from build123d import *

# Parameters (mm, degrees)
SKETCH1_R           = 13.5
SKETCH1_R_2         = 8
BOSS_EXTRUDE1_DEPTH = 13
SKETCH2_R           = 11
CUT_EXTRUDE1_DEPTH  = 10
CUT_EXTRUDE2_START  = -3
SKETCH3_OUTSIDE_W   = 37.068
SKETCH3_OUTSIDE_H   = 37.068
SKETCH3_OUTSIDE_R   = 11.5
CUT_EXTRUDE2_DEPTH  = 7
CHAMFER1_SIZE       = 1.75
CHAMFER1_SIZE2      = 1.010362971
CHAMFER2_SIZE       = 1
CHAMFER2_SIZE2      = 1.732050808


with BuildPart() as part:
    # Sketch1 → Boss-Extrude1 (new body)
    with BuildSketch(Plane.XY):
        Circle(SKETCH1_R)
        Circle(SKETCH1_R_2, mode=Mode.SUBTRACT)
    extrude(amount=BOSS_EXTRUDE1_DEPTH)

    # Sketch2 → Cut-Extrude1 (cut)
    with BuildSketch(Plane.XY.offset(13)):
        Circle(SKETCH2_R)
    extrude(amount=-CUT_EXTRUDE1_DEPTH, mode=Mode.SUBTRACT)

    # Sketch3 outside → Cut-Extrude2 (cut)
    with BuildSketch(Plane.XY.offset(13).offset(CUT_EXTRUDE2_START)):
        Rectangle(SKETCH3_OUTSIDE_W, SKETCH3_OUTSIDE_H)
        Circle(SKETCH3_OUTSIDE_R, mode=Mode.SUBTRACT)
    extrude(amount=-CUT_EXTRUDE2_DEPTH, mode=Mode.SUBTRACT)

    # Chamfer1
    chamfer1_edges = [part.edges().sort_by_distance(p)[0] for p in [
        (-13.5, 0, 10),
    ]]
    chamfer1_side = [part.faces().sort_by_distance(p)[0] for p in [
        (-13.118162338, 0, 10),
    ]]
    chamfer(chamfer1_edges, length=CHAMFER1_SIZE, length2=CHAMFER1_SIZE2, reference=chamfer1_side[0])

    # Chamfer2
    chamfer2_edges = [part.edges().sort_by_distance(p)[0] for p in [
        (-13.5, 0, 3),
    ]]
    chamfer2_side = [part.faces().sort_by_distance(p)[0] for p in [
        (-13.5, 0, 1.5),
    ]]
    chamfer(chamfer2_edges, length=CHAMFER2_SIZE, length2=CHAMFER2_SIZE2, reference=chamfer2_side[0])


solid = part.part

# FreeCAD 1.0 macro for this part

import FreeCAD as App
import Part
import Sketcher
Q = App.Units.Quantity


def edges_at(feature, points):
    """Names of the edges that pass closest to the given points."""
    edges = feature.Shape.Edges
    near = lambda p: min(range(len(edges)), key=lambda i: edges[i].distToShape(Part.Vertex(*p))[0])
    return sorted({f"Edge{near(p) + 1}" for p in points})


def add_polygon(sketch, points):
    """Adds a closed chain of lines whose ends are joined by coincident constraints."""
    first, n = sketch.GeometryCount, len(points)
    for a, b in zip(points, points[1:] + points[:1]):
        sketch.addGeometry(Part.LineSegment(App.Vector(*a, 0), App.Vector(*b, 0)), False)
    for i in range(n):
        sketch.addConstraint(Sketcher.Constraint("Coincident", first + i, 2, first + (i + 1) % n, 1))

doc = App.newDocument("Part")
body = doc.addObject("PartDesign::Body", "Body")

# Sketch on XY plane
sketch1 = doc.addObject("Sketcher::SketchObject", "Sketch")
body.addObject(sketch1)
sketch1.AttachmentSupport = (doc.XY_Plane, [""])
sketch1.MapMode = "FlatFace"
sketch1.addGeometry(Part.Circle(App.Vector(0, 0, 0), App.Vector(0, 0, 1), 14), False)
sketch1.addGeometry(Part.Circle(App.Vector(0, 0, 0), App.Vector(0, 0, 1), 8), False)
sketch1.addConstraint(Sketcher.Constraint("Coincident", 0, 3, -1, 1))
sketch1.addConstraint(Sketcher.Constraint("Coincident", 1, 3, -1, 1))
sketch1.addConstraint(Sketcher.Constraint("Diameter", 0, Q("27 mm")))
sketch1.addConstraint(Sketcher.Constraint("Diameter", 1, Q("16 mm")))
pad1 = doc.addObject("PartDesign::Pad", "Pad")
body.addObject(pad1)
pad1.Profile = sketch1
pad1.Length = 13

# Sketch on XY plane
sketch2 = doc.addObject("Sketcher::SketchObject", "Sketch001")
body.addObject(sketch2)
sketch2.AttachmentSupport = (doc.XY_Plane, [""])
sketch2.MapMode = "FlatFace"
sketch2.AttachmentOffset = App.Placement(App.Vector(0, 0, 13), App.Rotation())
sketch2.addGeometry(Part.Circle(App.Vector(0, 0, 0), App.Vector(0, 0, 1), 11), False)
sketch2.addConstraint(Sketcher.Constraint("Coincident", 0, 3, -1, 1))
sketch2.addConstraint(Sketcher.Constraint("Diameter", 0, Q("22 mm")))
pocket1 = doc.addObject("PartDesign::Pocket", "Pocket")
body.addObject(pocket1)
pocket1.Profile = sketch2
pocket1.Length = 10

# Sketch on XY plane
sketch3 = doc.addObject("Sketcher::SketchObject", "Sketch002")
body.addObject(sketch3)
sketch3.AttachmentSupport = (doc.XY_Plane, [""])
sketch3.MapMode = "FlatFace"
sketch3.AttachmentOffset = App.Placement(App.Vector(0, 0, 10), App.Rotation())
add_polygon(sketch3, [(-19, 19), (-19, -19), (19, -19), (19, 19)])  # lines 0-3
sketch3.addGeometry(Part.Circle(App.Vector(0, 0, 0), App.Vector(0, 0, 1), 12), False)  # 4
sketch3.addConstraint(Sketcher.Constraint("Vertical", 0))
sketch3.addConstraint(Sketcher.Constraint("Horizontal", 1))
sketch3.addConstraint(Sketcher.Constraint("Vertical", 2))
sketch3.addConstraint(Sketcher.Constraint("Horizontal", 3))
sketch3.addConstraint(Sketcher.Constraint("Coincident", 4, 3, -1, 1))
sketch3.addConstraint(Sketcher.Constraint("Symmetric", 0, 2, 2, 2, -1, 1))
sketch3.addConstraint(Sketcher.Constraint("Equal", 3, 0))
sketch3.addConstraint(Sketcher.Constraint("Diameter", 4, Q("23 mm")))
sketch3.addConstraint(Sketcher.Constraint("DistanceX", 1, 1, 1, 2, Q("37.068 mm")))
pocket2 = doc.addObject("PartDesign::Pocket", "Pocket001")
body.addObject(pocket2)
pocket2.Profile = sketch3
pocket2.Length = 7
doc.recompute()

chamfer = doc.addObject("PartDesign::Chamfer", "Chamfer")
body.addObject(chamfer)
chamfer.Base = (pocket2, edges_at(pocket2, [(-13.5, 0, 10)]))
chamfer.ChamferType = "Two distances"
chamfer.Size = 1.75
chamfer.Size2 = 1.010363
doc.recompute()

chamfer2 = doc.addObject("PartDesign::Chamfer", "Chamfer001")
body.addObject(chamfer2)
chamfer2.Base = (chamfer, edges_at(chamfer, [(-13.5, 0, 3)]))
chamfer2.ChamferType = "Two distances"
chamfer2.Size = 1
chamfer2.Size2 = 1.732051
chamfer2.FlipDirection = True

doc.recompute()
